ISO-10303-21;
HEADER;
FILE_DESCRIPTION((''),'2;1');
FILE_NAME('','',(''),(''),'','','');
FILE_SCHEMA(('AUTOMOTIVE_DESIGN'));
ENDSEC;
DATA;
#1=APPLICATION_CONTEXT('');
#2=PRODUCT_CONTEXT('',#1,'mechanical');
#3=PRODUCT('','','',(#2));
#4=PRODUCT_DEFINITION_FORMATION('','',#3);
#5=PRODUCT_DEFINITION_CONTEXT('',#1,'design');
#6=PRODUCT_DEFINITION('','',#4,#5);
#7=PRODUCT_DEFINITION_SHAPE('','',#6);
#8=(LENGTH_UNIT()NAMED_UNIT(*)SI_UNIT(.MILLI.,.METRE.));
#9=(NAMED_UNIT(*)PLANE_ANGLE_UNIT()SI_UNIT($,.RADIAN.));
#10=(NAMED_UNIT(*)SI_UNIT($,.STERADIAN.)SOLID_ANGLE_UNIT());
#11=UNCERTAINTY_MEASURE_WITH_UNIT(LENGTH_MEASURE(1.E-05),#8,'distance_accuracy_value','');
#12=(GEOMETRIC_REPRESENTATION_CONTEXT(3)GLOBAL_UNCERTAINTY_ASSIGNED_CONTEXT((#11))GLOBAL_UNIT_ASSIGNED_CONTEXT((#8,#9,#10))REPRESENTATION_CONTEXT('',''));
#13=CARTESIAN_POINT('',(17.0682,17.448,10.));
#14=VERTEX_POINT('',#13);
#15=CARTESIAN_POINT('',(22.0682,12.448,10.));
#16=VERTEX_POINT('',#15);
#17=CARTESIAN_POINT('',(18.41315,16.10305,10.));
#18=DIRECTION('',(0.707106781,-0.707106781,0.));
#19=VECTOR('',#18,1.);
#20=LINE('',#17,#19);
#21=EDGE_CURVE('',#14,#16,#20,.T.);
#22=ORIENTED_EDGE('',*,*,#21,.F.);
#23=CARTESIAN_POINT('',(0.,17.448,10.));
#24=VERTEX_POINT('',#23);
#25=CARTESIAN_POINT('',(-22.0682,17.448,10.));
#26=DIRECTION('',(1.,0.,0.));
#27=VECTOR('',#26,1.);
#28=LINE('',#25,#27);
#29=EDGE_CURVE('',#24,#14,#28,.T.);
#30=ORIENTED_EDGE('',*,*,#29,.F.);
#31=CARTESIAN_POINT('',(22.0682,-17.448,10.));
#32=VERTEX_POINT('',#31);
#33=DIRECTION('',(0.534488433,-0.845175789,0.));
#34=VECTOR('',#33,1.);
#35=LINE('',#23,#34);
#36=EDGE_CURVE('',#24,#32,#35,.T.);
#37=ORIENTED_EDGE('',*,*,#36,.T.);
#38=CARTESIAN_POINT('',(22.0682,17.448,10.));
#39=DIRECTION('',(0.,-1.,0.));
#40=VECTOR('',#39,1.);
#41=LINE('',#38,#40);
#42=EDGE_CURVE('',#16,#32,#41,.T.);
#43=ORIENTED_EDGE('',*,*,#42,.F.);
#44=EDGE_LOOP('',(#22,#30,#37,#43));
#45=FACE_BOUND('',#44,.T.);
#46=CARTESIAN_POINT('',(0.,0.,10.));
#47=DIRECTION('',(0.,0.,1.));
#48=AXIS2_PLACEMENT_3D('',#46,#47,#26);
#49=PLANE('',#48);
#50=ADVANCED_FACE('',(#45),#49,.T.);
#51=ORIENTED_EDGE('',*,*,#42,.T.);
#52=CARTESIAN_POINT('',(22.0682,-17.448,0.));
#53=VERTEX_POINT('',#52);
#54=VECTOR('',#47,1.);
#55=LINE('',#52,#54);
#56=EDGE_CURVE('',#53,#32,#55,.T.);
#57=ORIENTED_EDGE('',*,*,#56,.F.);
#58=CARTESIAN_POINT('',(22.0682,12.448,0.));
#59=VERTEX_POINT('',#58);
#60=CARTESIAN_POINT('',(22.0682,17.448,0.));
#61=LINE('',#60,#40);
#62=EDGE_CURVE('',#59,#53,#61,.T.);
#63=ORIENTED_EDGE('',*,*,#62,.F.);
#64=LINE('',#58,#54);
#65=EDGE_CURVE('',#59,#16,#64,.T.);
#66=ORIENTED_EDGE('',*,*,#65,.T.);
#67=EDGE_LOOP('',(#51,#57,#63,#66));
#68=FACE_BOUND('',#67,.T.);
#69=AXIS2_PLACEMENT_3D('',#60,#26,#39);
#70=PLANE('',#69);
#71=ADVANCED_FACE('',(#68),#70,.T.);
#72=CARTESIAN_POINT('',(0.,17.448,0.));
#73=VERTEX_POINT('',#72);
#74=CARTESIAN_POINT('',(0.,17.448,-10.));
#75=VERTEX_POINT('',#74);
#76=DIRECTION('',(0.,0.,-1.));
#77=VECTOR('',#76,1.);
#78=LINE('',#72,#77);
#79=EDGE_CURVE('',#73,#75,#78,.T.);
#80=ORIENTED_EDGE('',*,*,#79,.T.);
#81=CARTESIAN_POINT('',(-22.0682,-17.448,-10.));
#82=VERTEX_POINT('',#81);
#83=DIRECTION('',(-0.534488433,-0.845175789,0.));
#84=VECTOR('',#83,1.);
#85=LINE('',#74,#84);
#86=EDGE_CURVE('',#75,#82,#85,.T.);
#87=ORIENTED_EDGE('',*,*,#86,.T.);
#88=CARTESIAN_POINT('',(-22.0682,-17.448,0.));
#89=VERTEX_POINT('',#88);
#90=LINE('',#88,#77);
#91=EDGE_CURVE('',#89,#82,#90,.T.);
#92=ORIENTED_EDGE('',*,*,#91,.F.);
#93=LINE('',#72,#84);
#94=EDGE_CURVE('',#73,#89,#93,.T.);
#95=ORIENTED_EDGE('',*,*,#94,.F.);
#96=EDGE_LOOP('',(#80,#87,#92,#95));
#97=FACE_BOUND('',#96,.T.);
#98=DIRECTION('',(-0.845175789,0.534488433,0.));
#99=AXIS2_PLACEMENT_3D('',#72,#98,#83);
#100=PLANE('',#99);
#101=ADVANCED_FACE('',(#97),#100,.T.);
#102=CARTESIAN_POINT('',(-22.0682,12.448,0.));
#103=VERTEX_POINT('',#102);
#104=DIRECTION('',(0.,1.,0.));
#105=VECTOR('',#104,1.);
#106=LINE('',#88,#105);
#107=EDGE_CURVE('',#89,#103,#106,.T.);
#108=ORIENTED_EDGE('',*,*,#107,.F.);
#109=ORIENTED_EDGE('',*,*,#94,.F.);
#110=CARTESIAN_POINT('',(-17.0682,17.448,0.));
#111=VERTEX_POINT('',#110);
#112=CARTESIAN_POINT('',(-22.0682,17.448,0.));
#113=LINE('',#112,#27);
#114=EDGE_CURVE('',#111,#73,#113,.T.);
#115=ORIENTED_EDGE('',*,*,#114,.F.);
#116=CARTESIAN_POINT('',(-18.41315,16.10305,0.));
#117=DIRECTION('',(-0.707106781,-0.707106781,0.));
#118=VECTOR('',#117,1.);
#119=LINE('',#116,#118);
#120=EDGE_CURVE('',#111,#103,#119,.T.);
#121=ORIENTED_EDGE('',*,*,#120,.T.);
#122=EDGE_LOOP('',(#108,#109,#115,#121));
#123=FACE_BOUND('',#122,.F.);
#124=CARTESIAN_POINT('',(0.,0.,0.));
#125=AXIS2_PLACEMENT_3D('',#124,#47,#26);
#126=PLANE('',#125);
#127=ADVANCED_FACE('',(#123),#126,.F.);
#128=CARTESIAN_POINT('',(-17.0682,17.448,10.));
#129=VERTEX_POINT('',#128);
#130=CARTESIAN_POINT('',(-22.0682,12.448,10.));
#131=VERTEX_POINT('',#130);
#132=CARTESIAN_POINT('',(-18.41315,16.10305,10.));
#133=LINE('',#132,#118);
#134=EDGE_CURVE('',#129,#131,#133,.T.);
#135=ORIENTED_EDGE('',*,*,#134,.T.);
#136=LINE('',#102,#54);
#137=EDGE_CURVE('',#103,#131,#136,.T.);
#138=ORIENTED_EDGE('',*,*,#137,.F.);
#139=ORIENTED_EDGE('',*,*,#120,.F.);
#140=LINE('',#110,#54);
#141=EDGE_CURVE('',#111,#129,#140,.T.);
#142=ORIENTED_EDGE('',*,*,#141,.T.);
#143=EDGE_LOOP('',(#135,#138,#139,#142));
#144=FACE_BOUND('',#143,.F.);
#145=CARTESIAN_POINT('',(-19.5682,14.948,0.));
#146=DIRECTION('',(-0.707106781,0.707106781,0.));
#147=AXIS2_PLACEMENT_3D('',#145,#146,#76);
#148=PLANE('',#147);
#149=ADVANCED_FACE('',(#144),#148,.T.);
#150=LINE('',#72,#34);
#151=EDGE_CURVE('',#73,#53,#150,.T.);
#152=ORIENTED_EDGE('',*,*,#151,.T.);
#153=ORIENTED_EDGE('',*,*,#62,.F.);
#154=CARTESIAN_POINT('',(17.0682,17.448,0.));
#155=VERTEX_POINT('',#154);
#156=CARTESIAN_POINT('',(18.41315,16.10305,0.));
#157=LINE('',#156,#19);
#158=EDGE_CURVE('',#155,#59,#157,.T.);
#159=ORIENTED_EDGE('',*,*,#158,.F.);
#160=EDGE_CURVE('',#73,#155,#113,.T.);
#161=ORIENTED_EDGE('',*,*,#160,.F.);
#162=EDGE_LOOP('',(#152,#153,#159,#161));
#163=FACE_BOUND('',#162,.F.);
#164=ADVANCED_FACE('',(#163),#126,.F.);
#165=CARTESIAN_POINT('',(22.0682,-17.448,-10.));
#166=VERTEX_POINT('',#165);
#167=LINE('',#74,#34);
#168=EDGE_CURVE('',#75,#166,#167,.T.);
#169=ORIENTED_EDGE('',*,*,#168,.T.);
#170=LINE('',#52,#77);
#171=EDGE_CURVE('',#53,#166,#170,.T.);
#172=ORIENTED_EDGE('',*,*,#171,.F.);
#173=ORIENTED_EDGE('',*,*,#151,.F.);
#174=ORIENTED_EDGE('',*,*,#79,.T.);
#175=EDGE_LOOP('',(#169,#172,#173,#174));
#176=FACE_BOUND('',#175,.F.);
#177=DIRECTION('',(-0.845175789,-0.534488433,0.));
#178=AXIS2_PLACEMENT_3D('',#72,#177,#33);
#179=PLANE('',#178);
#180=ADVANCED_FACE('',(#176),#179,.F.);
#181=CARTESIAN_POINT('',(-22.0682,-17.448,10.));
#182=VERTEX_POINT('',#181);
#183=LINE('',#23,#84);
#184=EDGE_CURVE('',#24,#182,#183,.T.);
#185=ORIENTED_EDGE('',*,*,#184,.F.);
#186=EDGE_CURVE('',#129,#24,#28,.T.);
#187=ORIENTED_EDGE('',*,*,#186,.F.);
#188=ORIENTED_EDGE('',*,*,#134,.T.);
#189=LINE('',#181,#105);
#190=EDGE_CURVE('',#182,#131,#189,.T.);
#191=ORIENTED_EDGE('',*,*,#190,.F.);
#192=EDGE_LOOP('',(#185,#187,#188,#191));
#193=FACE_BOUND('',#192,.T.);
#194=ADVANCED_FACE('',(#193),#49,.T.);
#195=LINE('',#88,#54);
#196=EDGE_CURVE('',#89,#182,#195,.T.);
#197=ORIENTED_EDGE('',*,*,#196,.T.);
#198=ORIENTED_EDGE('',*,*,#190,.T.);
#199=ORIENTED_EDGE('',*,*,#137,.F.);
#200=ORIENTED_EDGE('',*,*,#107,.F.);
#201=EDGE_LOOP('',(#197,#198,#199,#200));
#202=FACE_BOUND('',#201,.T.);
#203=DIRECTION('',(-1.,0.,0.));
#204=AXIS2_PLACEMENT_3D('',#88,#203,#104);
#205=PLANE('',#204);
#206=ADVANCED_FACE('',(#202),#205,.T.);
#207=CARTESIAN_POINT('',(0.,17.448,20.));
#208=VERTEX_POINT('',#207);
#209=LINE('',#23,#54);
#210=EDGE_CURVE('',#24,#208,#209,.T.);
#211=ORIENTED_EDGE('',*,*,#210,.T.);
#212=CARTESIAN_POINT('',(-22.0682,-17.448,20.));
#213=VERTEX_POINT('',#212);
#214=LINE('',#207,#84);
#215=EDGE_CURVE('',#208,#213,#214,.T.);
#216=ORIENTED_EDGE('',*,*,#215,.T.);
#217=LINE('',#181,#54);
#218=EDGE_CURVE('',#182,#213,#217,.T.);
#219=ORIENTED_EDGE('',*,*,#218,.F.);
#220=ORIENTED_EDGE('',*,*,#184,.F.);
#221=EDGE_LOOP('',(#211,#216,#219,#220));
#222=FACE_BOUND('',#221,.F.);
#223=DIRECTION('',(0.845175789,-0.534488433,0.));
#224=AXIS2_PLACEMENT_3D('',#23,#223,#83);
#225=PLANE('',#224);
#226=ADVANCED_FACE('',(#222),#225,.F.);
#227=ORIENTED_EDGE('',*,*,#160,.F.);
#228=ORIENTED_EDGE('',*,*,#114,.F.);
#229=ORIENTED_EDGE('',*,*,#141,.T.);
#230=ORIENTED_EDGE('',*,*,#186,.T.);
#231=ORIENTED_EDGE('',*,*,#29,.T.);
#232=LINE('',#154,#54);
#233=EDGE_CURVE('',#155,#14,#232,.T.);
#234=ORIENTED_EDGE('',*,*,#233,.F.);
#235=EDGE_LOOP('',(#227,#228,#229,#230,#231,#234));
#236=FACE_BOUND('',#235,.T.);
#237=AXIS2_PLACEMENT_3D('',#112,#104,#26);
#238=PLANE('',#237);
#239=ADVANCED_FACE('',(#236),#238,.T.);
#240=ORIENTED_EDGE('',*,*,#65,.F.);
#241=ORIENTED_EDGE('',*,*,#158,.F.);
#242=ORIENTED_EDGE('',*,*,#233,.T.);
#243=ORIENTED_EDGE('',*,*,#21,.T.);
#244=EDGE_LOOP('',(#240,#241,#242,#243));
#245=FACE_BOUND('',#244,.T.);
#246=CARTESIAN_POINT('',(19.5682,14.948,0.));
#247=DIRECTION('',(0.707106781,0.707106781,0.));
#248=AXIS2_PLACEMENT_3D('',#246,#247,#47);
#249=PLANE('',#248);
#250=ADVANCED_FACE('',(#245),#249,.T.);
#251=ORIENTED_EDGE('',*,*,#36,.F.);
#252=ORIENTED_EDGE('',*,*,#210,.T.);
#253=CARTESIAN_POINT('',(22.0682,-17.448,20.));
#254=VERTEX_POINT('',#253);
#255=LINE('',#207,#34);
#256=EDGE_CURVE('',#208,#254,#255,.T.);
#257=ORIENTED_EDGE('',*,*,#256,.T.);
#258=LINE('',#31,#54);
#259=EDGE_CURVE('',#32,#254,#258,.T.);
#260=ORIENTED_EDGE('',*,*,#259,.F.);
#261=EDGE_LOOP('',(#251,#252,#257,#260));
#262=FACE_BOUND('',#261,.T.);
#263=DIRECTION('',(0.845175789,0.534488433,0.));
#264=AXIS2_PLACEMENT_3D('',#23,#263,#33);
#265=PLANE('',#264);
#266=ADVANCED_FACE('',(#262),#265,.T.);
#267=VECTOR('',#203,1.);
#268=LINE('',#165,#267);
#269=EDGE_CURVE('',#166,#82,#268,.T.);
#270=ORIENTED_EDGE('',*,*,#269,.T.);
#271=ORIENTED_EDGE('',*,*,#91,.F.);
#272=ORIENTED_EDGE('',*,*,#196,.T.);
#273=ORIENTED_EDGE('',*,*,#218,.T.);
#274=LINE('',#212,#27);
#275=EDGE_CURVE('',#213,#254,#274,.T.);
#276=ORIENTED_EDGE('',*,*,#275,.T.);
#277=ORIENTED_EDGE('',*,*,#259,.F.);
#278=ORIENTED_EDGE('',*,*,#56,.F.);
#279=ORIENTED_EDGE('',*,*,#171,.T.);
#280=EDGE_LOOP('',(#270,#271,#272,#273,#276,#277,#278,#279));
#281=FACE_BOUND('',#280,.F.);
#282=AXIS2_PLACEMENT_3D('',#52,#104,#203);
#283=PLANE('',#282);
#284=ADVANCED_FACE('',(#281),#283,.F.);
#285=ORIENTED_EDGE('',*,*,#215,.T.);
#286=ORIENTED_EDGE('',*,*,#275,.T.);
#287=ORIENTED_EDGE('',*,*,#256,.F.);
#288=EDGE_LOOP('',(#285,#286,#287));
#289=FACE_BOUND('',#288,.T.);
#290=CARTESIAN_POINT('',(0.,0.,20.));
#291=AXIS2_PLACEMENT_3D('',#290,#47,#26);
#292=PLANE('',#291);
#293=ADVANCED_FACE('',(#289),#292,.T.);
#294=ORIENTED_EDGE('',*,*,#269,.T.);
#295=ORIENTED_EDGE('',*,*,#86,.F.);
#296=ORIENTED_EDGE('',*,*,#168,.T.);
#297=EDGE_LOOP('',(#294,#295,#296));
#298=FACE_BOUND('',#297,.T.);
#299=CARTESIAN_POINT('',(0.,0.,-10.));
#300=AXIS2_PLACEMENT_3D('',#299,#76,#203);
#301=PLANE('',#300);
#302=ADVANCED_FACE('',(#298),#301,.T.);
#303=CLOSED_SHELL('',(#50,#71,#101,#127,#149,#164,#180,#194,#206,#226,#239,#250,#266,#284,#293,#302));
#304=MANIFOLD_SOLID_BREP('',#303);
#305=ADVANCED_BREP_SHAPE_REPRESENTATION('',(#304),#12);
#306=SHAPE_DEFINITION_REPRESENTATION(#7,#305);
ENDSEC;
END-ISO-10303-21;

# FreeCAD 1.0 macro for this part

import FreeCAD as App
import Part
import Sketcher
from FreeCAD import Vector
Q = App.Units.Quantity


def edges_at(feature, points):
    """Names of the edges that pass closest to the given points."""
    edges = feature.Shape.Edges
    near = lambda p: min(range(len(edges)), key=lambda i: edges[i].distToShape(Part.Vertex(*p))[0])
    return sorted({f"Edge{near(p) + 1}" for p in points})


def add_polygon(sketch, points):
    """Adds a closed chain of lines whose ends are joined by coincident constraints."""
    first, n = sketch.GeometryCount, len(points)
    for a, b in zip(points, points[1:] + points[:1]):
        sketch.addGeometry(Part.LineSegment(App.Vector(*a, 0), App.Vector(*b, 0)), False)
    for i in range(n):
        sketch.addConstraint(Sketcher.Constraint("Coincident", first + i, 2, first + (i + 1) % n, 1))

doc = App.newDocument("Part")
params = doc.addObject("Spreadsheet::Sheet", "Params")
for row, (alias, value) in enumerate([
    ("pad1_length", "10 mm"),
    ("pad2_length", "10 mm"),
    ("pad3_length", "10 mm"),
    ("chamfer_size", "5 mm"),
    ("chamfer2_size", "5 mm"),
], start=1):
    params.set(f"A{row}", alias)
    params.set(f"B{row}", "=" + value)
    params.setAlias(f"B{row}", alias)

body = doc.addObject("PartDesign::Body", "Body")

sketch1 = body.newObject("Sketcher::SketchObject", "Sketch")
sketch1.AttachmentSupport = (doc.getObject("XY_Plane"), [""])
sketch1.MapMode = "FlatFace"
add_polygon(sketch1, [(-22, -17), (22, -17), (22, 17), (-22, 17)])
sketch1.addConstraint(Sketcher.Constraint("Horizontal", 0))
sketch1.addConstraint(Sketcher.Constraint("Vertical", 1))
sketch1.addConstraint(Sketcher.Constraint("Horizontal", 2))
sketch1.addConstraint(Sketcher.Constraint("Vertical", 3))
sketch1.addConstraint(Sketcher.Constraint("Symmetric", 0, 2, 2, 2, -1, 1))
sketch1.addConstraint(Sketcher.Constraint("DistanceY", 1, 1, 1, 2, Q("34.896 mm")))
sketch1.addConstraint(Sketcher.Constraint("DistanceX", 0, 1, 0, 2, Q("44.1364 mm")))
pad1 = body.newObject("PartDesign::Pad", "Pad")
pad1.Profile = sketch1
pad1.setExpression("Length", "Params.pad1_length")

sketch2 = body.newObject("Sketcher::SketchObject", "Sketch001")
sketch2.AttachmentSupport = (doc.getObject("XY_Plane"), [""])
sketch2.MapMode = "FlatFace"
sketch2.AttachmentOffset = App.Placement(Vector(0, 0, 10), App.Rotation())
add_polygon(sketch2, [(0, 17), (-22, -17), (22, -17)])
sketch2.addConstraint(Sketcher.Constraint("Horizontal", 1))
sketch2.addConstraint(Sketcher.Constraint("PointOnObject", 2, 2, -2))
sketch2.addConstraint(Sketcher.Constraint("Equal", 0, 2))
sketch2.addConstraint(Sketcher.Constraint("Angle", 0, Q("-122.3092 deg")))
sketch2.addConstraint(Sketcher.Constraint("DistanceX", 1, 1, 1, 2, Q("44.1364 mm")))
sketch2.addConstraint(Sketcher.Constraint("DistanceY", 0, 2, -1, 1, Q("17.448 mm")))
pad2 = body.newObject("PartDesign::Pad", "Pad001")
pad2.Profile = sketch2
pad2.setExpression("Length", "Params.pad2_length")

sketch3 = body.newObject("Sketcher::SketchObject", "Sketch002")
sketch3.AttachmentSupport = (doc.getObject("XY_Plane"), [""])
sketch3.MapMode = "FlatFace"
add_polygon(sketch3, [(-22, -17), (0, 17), (22, -17)])
sketch3.addConstraint(Sketcher.Constraint("Horizontal", 2))
sketch3.addConstraint(Sketcher.Constraint("PointOnObject", 0, 2, -2))
sketch3.addConstraint(Sketcher.Constraint("Equal", 0, 1))
sketch3.addConstraint(Sketcher.Constraint("Angle", 0, Q("57.6908 deg")))
sketch3.addConstraint(Sketcher.Constraint("DistanceX", 2, 2, 2, 1, Q("44.1364 mm")))
sketch3.addConstraint(Sketcher.Constraint("DistanceY", -1, 1, 0, 2, Q("17.448 mm")))
pad3 = body.newObject("PartDesign::Pad", "Pad002")
pad3.Profile = sketch3
pad3.setExpression("Length", "Params.pad3_length")
pad3.Reversed = True
doc.recompute()

chamfer = body.newObject("PartDesign::Chamfer", "Chamfer")
chamfer.Base = (pad3, edges_at(pad3, [(22.068, 17.448, 5)]))
chamfer.setExpression("Size", "Params.chamfer_size")
doc.recompute()

chamfer2 = body.newObject("PartDesign::Chamfer", "Chamfer001")
chamfer2.Base = (chamfer, edges_at(chamfer, [(-22.068, 17.448, 5)]))
chamfer2.setExpression("Size", "Params.chamfer2_size")

doc.recompute()
